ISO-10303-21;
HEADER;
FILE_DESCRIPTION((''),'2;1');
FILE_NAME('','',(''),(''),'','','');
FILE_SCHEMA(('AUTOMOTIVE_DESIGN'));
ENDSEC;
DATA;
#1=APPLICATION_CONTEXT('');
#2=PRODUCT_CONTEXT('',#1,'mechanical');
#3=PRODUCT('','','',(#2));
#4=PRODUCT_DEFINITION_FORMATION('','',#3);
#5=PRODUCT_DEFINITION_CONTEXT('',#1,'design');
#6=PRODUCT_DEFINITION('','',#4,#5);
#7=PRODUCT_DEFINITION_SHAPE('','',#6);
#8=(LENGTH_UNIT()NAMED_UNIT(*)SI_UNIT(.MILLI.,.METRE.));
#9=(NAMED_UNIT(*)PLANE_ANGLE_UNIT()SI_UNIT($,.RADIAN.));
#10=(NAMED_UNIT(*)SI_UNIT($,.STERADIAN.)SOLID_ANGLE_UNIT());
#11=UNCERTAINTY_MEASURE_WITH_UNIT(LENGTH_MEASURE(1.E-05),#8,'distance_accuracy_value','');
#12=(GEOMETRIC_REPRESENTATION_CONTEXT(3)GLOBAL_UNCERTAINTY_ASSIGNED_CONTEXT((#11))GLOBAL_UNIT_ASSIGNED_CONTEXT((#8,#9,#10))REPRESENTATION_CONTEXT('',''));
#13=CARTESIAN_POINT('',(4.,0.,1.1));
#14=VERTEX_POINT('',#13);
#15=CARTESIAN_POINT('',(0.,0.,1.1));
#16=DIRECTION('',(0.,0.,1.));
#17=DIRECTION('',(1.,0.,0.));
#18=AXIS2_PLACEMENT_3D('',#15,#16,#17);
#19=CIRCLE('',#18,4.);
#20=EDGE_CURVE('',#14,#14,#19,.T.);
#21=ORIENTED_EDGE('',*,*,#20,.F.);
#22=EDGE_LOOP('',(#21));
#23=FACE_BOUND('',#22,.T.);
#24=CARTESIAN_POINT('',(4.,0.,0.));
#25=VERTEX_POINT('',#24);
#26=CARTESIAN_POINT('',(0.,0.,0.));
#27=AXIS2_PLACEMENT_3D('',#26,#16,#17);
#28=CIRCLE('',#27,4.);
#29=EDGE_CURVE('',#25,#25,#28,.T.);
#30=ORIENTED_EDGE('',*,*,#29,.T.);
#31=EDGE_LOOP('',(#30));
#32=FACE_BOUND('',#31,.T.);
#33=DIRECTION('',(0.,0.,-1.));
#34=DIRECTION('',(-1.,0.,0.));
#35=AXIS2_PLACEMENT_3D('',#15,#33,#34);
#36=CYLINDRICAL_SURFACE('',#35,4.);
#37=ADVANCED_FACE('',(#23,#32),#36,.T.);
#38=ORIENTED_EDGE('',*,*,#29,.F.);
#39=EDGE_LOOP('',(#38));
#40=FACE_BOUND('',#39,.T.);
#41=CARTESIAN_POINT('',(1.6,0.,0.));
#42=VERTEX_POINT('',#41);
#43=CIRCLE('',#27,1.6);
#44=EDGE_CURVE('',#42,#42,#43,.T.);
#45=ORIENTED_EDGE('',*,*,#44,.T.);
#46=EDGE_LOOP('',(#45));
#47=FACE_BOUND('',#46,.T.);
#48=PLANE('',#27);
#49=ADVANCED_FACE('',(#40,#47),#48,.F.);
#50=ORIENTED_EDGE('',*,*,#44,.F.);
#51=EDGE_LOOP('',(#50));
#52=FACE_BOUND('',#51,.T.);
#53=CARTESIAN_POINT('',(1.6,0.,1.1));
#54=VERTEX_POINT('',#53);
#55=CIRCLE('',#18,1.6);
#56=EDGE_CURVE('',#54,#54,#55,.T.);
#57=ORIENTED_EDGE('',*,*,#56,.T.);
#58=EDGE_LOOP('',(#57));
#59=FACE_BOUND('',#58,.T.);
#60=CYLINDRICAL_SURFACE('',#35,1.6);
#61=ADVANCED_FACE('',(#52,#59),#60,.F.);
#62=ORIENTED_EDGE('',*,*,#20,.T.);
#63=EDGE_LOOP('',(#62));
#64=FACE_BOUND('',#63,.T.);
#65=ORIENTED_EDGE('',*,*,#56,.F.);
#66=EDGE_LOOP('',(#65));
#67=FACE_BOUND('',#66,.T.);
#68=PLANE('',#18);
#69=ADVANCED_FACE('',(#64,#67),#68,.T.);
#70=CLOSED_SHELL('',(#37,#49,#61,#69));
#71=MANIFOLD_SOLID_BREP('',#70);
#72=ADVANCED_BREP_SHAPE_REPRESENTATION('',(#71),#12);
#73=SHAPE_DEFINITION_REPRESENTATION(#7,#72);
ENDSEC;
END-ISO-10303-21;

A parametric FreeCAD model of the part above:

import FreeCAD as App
import Part
import Sketcher

doc = App.newDocument("Part")
body = doc.addObject("PartDesign::Body", "Body")

sketch1 = body.newObject("Sketcher::SketchObject", "Sketch")
sketch1.AttachmentSupport = (doc.getObject("XY_Plane"), [""])
sketch1.MapMode = "FlatFace"
sketch1.addGeometry([
    Part.Circle(App.Vector(0, 0, 0), App.Vector(0, 0, 1), 4),
    Part.Circle(App.Vector(0, 0, 0), App.Vector(0, 0, 1), 1.6),
], False)
sketch1.addConstraint([
    Sketcher.Constraint("Coincident", 0, 3, -1, 1),
    Sketcher.Constraint("Coincident", 1, 3, -1, 1),
    Sketcher.Constraint("Diameter", 0, 8.0),
    Sketcher.Constraint("Diameter", 1, 3.2),
])
pad1 = body.newObject("PartDesign::Pad", "Pad")
pad1.Profile = sketch1
pad1.Length = 1.1

doc.recompute()
